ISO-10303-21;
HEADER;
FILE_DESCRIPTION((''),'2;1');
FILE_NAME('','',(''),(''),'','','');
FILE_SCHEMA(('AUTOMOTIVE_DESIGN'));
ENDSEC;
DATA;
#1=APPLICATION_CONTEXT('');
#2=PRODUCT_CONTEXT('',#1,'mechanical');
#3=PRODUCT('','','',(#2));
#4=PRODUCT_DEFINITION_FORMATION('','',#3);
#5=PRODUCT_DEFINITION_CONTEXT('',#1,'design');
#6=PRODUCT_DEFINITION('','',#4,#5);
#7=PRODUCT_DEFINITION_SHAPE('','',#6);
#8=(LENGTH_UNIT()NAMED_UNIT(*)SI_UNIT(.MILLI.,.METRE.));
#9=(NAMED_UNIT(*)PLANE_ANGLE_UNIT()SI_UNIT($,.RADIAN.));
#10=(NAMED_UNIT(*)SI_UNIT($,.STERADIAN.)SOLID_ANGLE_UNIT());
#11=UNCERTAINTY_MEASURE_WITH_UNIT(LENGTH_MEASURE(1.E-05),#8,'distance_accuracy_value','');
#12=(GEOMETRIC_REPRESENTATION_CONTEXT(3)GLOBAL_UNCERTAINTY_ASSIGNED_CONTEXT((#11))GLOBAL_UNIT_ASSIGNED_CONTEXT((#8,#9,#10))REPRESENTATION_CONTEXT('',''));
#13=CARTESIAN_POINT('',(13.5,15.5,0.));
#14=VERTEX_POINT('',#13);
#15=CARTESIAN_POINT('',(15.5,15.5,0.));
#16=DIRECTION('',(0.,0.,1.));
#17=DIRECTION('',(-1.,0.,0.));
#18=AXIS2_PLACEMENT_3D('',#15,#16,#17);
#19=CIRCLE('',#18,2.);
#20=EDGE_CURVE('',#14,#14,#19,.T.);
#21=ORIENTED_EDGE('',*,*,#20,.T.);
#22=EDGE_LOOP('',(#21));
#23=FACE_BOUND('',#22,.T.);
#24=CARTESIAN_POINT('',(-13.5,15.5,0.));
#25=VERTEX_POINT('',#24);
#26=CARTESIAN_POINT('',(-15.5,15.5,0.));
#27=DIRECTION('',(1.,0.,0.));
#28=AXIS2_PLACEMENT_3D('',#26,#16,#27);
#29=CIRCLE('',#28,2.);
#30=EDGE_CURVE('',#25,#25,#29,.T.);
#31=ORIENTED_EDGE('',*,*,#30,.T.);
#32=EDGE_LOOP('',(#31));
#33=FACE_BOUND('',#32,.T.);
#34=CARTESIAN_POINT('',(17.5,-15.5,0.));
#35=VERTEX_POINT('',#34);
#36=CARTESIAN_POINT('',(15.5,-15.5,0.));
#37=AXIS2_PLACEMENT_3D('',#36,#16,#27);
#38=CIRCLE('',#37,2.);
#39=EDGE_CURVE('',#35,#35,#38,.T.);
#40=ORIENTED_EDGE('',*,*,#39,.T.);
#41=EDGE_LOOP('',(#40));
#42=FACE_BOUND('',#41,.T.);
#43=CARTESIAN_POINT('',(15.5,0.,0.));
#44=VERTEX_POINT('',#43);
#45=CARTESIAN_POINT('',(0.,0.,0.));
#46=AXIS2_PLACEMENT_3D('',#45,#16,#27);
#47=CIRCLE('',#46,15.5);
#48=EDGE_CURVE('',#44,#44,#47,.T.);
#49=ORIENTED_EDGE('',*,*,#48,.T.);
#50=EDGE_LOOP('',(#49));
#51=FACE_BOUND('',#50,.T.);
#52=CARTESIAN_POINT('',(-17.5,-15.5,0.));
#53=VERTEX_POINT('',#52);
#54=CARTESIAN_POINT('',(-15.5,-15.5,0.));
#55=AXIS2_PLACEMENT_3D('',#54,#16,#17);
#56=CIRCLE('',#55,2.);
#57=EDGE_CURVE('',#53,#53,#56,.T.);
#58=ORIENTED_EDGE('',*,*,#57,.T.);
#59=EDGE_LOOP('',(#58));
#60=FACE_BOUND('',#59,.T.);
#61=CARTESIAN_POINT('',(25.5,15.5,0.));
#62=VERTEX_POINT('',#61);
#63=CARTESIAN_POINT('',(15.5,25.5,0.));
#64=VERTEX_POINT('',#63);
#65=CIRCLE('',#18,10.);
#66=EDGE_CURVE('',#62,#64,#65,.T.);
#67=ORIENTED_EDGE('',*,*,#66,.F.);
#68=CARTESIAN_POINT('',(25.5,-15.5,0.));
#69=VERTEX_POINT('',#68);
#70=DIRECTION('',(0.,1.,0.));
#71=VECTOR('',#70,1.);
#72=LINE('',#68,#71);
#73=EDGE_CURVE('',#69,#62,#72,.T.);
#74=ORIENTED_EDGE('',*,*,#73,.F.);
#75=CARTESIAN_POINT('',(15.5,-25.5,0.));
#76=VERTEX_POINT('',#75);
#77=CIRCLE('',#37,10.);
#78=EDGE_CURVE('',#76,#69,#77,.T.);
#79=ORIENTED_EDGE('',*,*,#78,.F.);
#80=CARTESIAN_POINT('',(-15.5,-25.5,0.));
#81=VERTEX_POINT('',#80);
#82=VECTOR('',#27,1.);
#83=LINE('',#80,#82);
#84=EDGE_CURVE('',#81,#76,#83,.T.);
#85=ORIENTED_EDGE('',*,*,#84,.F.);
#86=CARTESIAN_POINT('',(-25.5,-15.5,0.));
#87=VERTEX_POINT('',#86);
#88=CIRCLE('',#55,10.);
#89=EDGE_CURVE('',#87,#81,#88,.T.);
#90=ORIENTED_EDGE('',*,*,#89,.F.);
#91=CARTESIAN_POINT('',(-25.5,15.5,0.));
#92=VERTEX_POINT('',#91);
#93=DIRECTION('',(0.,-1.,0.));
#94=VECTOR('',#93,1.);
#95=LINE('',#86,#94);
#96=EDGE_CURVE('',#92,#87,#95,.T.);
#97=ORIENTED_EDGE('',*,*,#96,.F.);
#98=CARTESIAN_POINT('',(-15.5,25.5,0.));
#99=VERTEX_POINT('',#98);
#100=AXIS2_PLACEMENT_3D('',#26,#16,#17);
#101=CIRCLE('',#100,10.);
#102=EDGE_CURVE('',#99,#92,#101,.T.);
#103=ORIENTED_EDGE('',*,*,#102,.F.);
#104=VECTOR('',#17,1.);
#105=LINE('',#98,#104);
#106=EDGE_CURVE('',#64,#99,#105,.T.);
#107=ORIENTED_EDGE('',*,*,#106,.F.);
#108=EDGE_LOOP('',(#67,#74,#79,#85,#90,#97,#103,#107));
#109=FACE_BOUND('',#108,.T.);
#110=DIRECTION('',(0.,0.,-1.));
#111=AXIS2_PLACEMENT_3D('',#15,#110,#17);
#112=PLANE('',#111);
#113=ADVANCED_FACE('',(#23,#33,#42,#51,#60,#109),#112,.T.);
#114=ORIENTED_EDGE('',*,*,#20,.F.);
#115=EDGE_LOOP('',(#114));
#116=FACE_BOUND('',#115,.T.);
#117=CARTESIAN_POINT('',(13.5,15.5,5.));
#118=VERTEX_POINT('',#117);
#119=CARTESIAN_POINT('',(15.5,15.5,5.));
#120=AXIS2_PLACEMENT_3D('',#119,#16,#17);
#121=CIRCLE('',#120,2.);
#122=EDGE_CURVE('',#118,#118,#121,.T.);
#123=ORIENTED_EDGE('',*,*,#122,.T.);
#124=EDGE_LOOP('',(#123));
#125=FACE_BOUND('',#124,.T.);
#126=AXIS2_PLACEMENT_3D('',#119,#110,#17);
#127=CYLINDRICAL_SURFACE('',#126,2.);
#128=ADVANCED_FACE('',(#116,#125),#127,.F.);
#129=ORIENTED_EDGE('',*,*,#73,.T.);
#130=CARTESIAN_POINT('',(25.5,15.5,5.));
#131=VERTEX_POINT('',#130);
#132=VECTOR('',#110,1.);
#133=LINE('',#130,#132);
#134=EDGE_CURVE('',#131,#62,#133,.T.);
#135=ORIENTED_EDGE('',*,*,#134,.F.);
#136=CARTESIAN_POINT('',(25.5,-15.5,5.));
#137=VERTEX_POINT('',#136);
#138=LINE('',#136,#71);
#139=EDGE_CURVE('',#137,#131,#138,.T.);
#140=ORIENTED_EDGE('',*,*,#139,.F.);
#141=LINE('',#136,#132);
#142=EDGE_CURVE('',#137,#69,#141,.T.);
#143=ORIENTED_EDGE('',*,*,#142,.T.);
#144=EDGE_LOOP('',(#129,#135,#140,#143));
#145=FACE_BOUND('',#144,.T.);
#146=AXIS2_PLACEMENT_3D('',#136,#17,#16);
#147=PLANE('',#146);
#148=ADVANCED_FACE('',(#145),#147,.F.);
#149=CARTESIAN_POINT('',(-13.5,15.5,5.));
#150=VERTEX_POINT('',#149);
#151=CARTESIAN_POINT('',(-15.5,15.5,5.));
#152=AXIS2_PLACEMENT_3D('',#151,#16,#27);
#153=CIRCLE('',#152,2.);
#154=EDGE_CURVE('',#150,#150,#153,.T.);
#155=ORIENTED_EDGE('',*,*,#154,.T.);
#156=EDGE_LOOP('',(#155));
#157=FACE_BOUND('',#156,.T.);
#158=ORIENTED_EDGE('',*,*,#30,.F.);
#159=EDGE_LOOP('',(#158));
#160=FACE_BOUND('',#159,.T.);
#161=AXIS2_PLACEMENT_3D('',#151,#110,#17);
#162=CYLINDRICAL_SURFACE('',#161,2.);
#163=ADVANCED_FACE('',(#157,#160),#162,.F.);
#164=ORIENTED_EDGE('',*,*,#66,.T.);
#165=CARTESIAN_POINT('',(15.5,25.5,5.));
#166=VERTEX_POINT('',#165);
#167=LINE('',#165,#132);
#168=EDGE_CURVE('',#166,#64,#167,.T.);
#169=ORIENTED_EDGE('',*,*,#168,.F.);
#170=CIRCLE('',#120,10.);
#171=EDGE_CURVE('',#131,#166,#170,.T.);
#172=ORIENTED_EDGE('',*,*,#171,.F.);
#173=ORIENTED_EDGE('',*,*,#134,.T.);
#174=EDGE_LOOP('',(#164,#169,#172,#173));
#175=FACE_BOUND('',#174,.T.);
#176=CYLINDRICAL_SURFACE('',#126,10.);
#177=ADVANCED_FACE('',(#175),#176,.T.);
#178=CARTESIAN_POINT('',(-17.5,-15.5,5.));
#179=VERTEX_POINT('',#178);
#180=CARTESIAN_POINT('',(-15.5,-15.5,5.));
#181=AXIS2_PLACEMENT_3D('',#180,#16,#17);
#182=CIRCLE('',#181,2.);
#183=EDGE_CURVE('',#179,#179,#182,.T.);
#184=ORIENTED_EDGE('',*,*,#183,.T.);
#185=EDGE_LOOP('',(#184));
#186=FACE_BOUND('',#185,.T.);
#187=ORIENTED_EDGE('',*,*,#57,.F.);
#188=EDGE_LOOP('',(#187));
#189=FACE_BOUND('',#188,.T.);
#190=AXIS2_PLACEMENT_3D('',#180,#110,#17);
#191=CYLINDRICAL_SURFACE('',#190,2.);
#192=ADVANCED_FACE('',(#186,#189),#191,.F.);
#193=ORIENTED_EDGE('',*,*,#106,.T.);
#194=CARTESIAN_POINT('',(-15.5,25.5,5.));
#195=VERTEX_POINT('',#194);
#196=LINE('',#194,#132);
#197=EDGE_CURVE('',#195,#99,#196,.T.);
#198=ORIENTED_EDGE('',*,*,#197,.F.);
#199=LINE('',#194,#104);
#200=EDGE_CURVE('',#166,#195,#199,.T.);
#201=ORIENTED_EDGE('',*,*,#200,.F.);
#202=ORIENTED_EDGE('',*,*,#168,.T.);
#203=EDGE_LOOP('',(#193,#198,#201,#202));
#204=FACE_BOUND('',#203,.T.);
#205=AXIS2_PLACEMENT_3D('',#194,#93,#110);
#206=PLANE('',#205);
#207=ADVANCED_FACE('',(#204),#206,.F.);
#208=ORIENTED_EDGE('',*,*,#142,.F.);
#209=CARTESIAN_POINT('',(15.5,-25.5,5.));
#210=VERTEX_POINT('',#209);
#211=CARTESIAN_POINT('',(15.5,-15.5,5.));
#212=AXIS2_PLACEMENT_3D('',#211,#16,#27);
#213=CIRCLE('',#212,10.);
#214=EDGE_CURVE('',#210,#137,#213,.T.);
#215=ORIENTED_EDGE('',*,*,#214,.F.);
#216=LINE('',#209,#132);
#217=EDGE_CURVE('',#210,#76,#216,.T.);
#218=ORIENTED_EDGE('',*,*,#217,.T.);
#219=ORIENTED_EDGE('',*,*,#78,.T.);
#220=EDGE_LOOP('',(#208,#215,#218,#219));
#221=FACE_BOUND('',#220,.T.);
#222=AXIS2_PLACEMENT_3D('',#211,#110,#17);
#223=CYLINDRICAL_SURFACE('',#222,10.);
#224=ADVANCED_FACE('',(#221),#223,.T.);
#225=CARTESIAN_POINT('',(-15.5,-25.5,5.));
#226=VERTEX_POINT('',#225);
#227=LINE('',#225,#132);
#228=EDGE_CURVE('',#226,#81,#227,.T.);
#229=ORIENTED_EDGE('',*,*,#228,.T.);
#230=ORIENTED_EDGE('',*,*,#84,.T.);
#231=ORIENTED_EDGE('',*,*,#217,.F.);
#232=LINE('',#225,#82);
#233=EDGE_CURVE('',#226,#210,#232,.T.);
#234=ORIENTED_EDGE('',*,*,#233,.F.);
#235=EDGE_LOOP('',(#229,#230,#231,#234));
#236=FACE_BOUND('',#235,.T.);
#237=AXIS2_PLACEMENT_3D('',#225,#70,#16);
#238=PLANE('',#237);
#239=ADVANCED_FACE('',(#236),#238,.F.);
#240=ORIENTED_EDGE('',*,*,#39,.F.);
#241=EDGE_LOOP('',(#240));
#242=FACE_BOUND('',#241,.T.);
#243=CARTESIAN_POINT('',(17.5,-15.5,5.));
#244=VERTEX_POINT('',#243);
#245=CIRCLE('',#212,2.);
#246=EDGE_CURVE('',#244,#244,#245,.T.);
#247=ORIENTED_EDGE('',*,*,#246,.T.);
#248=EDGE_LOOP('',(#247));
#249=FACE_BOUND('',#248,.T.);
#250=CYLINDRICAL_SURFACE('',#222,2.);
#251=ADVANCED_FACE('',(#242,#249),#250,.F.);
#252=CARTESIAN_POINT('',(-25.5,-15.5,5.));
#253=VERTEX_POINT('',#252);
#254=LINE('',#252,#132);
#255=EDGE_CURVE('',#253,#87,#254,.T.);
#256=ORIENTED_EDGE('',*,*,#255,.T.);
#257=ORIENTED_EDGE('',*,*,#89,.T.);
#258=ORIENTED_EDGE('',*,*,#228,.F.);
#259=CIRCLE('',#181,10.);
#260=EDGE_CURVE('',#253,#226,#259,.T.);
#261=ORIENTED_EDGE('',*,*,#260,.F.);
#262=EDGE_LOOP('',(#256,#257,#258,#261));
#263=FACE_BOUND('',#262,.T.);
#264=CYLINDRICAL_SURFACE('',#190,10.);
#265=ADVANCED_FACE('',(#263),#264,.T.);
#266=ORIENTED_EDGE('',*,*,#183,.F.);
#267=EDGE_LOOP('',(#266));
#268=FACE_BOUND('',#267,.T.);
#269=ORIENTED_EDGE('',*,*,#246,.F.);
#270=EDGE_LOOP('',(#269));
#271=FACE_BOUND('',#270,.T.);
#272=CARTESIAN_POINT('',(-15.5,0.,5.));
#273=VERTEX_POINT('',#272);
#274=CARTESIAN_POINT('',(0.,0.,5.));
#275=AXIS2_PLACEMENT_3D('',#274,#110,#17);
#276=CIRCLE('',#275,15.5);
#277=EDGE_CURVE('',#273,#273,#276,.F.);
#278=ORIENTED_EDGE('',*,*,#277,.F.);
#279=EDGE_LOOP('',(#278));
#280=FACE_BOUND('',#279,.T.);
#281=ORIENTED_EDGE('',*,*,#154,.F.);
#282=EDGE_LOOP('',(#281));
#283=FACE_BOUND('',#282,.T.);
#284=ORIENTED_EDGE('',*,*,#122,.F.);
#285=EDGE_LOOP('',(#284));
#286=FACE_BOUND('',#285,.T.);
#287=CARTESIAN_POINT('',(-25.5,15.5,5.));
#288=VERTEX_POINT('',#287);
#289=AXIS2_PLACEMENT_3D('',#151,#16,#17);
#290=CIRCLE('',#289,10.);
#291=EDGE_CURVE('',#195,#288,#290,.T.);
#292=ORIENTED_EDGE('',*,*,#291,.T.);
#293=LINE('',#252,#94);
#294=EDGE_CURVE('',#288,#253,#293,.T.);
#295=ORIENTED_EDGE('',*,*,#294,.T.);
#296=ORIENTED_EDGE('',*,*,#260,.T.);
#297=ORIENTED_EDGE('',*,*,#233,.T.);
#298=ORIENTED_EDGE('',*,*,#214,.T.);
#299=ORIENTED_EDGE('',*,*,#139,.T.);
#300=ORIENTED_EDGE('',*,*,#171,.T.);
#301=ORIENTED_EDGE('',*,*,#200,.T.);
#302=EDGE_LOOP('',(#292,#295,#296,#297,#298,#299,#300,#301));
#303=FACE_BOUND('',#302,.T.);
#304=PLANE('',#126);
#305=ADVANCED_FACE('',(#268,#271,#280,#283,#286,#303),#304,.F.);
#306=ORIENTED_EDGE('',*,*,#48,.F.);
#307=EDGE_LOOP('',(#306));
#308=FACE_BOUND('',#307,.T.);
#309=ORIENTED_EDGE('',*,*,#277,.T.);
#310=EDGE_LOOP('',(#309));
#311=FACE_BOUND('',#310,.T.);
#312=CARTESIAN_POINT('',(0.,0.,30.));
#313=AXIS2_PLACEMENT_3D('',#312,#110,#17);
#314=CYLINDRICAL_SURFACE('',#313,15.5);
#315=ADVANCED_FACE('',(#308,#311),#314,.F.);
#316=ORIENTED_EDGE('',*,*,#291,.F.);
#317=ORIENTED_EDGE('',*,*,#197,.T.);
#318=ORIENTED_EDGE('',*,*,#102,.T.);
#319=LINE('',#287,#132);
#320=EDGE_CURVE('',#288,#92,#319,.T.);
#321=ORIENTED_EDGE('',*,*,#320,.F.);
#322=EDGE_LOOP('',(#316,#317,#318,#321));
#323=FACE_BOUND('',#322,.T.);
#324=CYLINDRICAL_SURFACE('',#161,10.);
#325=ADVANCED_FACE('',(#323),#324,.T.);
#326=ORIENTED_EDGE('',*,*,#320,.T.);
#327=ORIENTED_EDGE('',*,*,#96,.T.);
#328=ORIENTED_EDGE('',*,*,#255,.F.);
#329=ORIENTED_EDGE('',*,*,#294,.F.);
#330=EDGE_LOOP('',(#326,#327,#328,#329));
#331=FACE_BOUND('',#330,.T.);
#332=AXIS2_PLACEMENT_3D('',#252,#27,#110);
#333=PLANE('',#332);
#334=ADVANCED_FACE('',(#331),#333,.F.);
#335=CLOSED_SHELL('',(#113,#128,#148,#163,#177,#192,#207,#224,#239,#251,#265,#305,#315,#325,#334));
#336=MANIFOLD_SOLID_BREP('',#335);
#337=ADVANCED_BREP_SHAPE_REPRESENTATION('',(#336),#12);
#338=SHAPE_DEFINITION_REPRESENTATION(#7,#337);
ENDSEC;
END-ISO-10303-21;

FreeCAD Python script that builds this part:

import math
import FreeCAD as App
import Part
import Sketcher
Q = App.Units.Quantity

doc = App.newDocument("Part")
body = doc.addObject("PartDesign::Body", "Body")

sketch1 = doc.addObject("Sketcher::SketchObject", "Sketch")
body.addObject(sketch1)
sketch1.AttachmentSupport = (doc.XY_Plane, [""])
sketch1.MapMode = "FlatFace"
sketch1.addGeometry([
    Part.LineSegment(App.Vector(-15.5, -25.5, 0), App.Vector(15.5, -25.5, 0)),
    Part.ArcOfCircle(Part.Circle(App.Vector(15.5, -15.5, 0), App.Vector(0, 0, 1), 10), math.radians(-90), math.radians(0)),
    Part.LineSegment(App.Vector(25.5, -15.5, 0), App.Vector(25.5, 15.5, 0)),
    Part.ArcOfCircle(Part.Circle(App.Vector(15.5, 15.5, 0), App.Vector(0, 0, 1), 10), math.radians(0), math.radians(90)),
    Part.LineSegment(App.Vector(15.5, 25.5, 0), App.Vector(-15.5, 25.5, 0)),
    Part.ArcOfCircle(Part.Circle(App.Vector(-15.5, 15.5, 0), App.Vector(0, 0, 1), 10), math.radians(90), math.radians(180)),
    Part.LineSegment(App.Vector(-25.5, 15.5, 0), App.Vector(-25.5, -15.5, 0)),
    Part.ArcOfCircle(Part.Circle(App.Vector(-15.5, -15.5, 0), App.Vector(0, 0, 1), 10), math.radians(180), math.radians(270)),
    Part.Circle(App.Vector(-15.5, -15.5, 0), App.Vector(0, 0, 1), 2),
    Part.Circle(App.Vector(15.5, -15.5, 0), App.Vector(0, 0, 1), 2),
    Part.Circle(App.Vector(-15.5, 15.5, 0), App.Vector(0, 0, 1), 2),
    Part.Circle(App.Vector(15.5, 15.5, 0), App.Vector(0, 0, 1), 2),
], False)
sketch1.addConstraint([
    Sketcher.Constraint("Tangent", 0, 2, 1, 1),
    Sketcher.Constraint("Tangent", 1, 2, 2, 1),
    Sketcher.Constraint("Tangent", 2, 2, 3, 1),
    Sketcher.Constraint("Tangent", 3, 2, 4, 1),
    Sketcher.Constraint("Tangent", 4, 2, 5, 1),
    Sketcher.Constraint("Tangent", 5, 2, 6, 1),
    Sketcher.Constraint("Tangent", 6, 2, 7, 1),
    Sketcher.Constraint("Tangent", 7, 2, 0, 1),
    Sketcher.Constraint("Horizontal", 0),
    Sketcher.Constraint("Vertical", 2),
    Sketcher.Constraint("Horizontal", 4),
    Sketcher.Constraint("Vertical", 6),
    Sketcher.Constraint("Coincident", 8, 3, 7, 3),
    Sketcher.Constraint("Coincident", 9, 3, 1, 3),
    Sketcher.Constraint("Coincident", 10, 3, 5, 3),
    Sketcher.Constraint("Coincident", 11, 3, 3, 3),
    Sketcher.Constraint("Equal", 1, 3),
    Sketcher.Constraint("Equal", 3, 5),
    Sketcher.Constraint("Equal", 5, 7),
    Sketcher.Constraint("Equal", 8, 9),
    Sketcher.Constraint("Equal", 9, 10),
    Sketcher.Constraint("Equal", 10, 11),
    Sketcher.Constraint("Symmetric", 1, 3, 5, 3, -1, 1),
    Sketcher.Constraint("Equal", 4, 2),
    Sketcher.Constraint("Diameter", 8, Q("4 mm")),
    Sketcher.Constraint("Radius", 1, Q("10 mm")),
    Sketcher.Constraint("DistanceX", 0, 1, 0, 2, Q("31 mm")),
])
pad1 = doc.addObject("PartDesign::Pad", "Pad")
body.addObject(pad1)
pad1.Profile = sketch1
pad1.Length = 5

sketch2 = doc.addObject("Sketcher::SketchObject", "Sketch001")
body.addObject(sketch2)
sketch2.AttachmentSupport = (doc.XY_Plane, [""])
sketch2.MapMode = "FlatFace"
sketch2.addGeometry(Part.Circle(App.Vector(0, 0, 0), App.Vector(0, 0, 1), 16), False)
sketch2.addConstraint([
    Sketcher.Constraint("Coincident", 0, 3, -1, 1),
    Sketcher.Constraint("Diameter", 0, Q("31 mm")),
])
pocket1 = doc.addObject("PartDesign::Pocket", "Pocket")
body.addObject(pocket1)
pocket1.Profile = sketch2
pocket1.Length = 30
pocket1.Reversed = True

doc.recompute()
